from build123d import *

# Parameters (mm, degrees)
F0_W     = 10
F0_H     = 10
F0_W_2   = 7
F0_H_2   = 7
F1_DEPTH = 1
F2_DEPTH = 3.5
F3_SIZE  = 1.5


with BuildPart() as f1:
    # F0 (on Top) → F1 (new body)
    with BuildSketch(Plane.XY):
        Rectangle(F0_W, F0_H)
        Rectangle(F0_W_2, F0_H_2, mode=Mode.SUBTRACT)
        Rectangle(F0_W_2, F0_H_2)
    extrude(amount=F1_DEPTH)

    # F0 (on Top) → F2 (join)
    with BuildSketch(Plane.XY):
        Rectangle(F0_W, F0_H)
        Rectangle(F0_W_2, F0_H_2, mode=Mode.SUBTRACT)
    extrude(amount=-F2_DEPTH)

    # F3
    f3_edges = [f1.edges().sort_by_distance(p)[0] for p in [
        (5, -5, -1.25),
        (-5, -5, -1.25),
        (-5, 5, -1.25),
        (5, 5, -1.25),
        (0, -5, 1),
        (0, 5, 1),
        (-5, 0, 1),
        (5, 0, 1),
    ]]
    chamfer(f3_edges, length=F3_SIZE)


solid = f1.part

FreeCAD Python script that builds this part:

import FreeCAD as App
import Part
import Sketcher

V = App.Vector


def edges_at(feature, points):
    """Names of the edges that pass closest to the given points."""
    edges = feature.Shape.Edges
    near = lambda p: min(range(len(edges)), key=lambda i: edges[i].distToShape(Part.Vertex(*p))[0])
    return sorted({f"Edge{near(p) + 1}" for p in points})

doc = App.newDocument("Part")
body = doc.addObject("PartDesign::Body", "Body")

sketch1 = body.newObject("Sketcher::SketchObject", "Sketch")
sketch1.AttachmentSupport = (doc.getObject("XY_Plane"), [""])
sketch1.MapMode = "FlatFace"
sketch1.addGeometry(Part.LineSegment(V(-5, 5, 0), V(-5, -5, 0)), False)
sketch1.addGeometry(Part.LineSegment(V(-5, -5, 0), V(5, -5, 0)), False)
sketch1.addGeometry(Part.LineSegment(V(5, -5, 0), V(5, 5, 0)), False)
sketch1.addGeometry(Part.LineSegment(V(5, 5, 0), V(-5, 5, 0)), False)
sketch1.addConstraint(Sketcher.Constraint("Coincident", 0, 2, 1, 1))
sketch1.addConstraint(Sketcher.Constraint("Coincident", 1, 2, 2, 1))
sketch1.addConstraint(Sketcher.Constraint("Coincident", 2, 2, 3, 1))
sketch1.addConstraint(Sketcher.Constraint("Coincident", 3, 2, 0, 1))
sketch1.addConstraint(Sketcher.Constraint("Vertical", 0))
sketch1.addConstraint(Sketcher.Constraint("Horizontal", 1))
sketch1.addConstraint(Sketcher.Constraint("Vertical", 2))
sketch1.addConstraint(Sketcher.Constraint("Horizontal", 3))
sketch1.addConstraint(Sketcher.Constraint("Symmetric", 0, 2, 2, 2, -1, 1))
sketch1.addConstraint(Sketcher.Constraint("Equal", 3, 0))
sketch1.addConstraint(Sketcher.Constraint("DistanceX", 1, 1, 1, 2, 10.0))
pad1 = body.newObject("PartDesign::Pad", "Pad")
pad1.Profile = sketch1
pad1.Length = 1

sketch2 = body.newObject("Sketcher::SketchObject", "Sketch001")
sketch2.AttachmentSupport = (doc.getObject("XY_Plane"), [""])
sketch2.MapMode = "FlatFace"
sketch2.addGeometry(Part.LineSegment(V(-5, 5, 0), V(-5, -5, 0)), False)
sketch2.addGeometry(Part.LineSegment(V(-5, -5, 0), V(5, -5, 0)), False)
sketch2.addGeometry(Part.LineSegment(V(5, -5, 0), V(5, 5, 0)), False)
sketch2.addGeometry(Part.LineSegment(V(5, 5, 0), V(-5, 5, 0)), False)
sketch2.addGeometry(Part.LineSegment(V(4, -4, 0), V(-4, -4, 0)), False)
sketch2.addGeometry(Part.LineSegment(V(-4, -4, 0), V(-4, 4, 0)), False)
sketch2.addGeometry(Part.LineSegment(V(-4, 4, 0), V(4, 4, 0)), False)
sketch2.addGeometry(Part.LineSegment(V(4, 4, 0), V(4, -4, 0)), False)
sketch2.addConstraint(Sketcher.Constraint("Coincident", 0, 2, 1, 1))
sketch2.addConstraint(Sketcher.Constraint("Coincident", 1, 2, 2, 1))
sketch2.addConstraint(Sketcher.Constraint("Coincident", 2, 2, 3, 1))
sketch2.addConstraint(Sketcher.Constraint("Coincident", 3, 2, 0, 1))
sketch2.addConstraint(Sketcher.Constraint("Coincident", 4, 2, 5, 1))
sketch2.addConstraint(Sketcher.Constraint("Coincident", 5, 2, 6, 1))
sketch2.addConstraint(Sketcher.Constraint("Coincident", 6, 2, 7, 1))
sketch2.addConstraint(Sketcher.Constraint("Coincident", 7, 2, 4, 1))
sketch2.addConstraint(Sketcher.Constraint("Vertical", 0))
sketch2.addConstraint(Sketcher.Constraint("Horizontal", 1))
sketch2.addConstraint(Sketcher.Constraint("Vertical", 2))
sketch2.addConstraint(Sketcher.Constraint("Horizontal", 3))
sketch2.addConstraint(Sketcher.Constraint("Horizontal", 4))
sketch2.addConstraint(Sketcher.Constraint("Vertical", 5))
sketch2.addConstraint(Sketcher.Constraint("Horizontal", 6))
sketch2.addConstraint(Sketcher.Constraint("Vertical", 7))
sketch2.addConstraint(Sketcher.Constraint("Symmetric", 0, 2, 2, 2, -1, 1))
sketch2.addConstraint(Sketcher.Constraint("Symmetric", 4, 2, 6, 2, -1, 1))
sketch2.addConstraint(Sketcher.Constraint("Equal", 3, 0))
sketch2.addConstraint(Sketcher.Constraint("Equal", 6, 5))
sketch2.addConstraint(Sketcher.Constraint("DistanceX", 1, 1, 1, 2, 10.0))
sketch2.addConstraint(Sketcher.Constraint("DistanceX", 4, 2, 4, 1, 7.0))
pad2 = body.newObject("PartDesign::Pad", "Pad001")
pad2.Profile = sketch2
pad2.Length = 3.5
pad2.Reversed = True
doc.recompute()

chamfer = body.newObject("PartDesign::Chamfer", "Chamfer")
chamfer.Base = (pad2, edges_at(pad2, [
    (5, -5, -1.25),
    (-5, -5, -1.25),
    (-5, 5, -1.25),
    (5, 5, -1.25),
    (0, -5, 1),
    (0, 5, 1),
    (-5, 0, 1),
    (5, 0, 1),
]))
chamfer.Size = 1.5

doc.recompute()
